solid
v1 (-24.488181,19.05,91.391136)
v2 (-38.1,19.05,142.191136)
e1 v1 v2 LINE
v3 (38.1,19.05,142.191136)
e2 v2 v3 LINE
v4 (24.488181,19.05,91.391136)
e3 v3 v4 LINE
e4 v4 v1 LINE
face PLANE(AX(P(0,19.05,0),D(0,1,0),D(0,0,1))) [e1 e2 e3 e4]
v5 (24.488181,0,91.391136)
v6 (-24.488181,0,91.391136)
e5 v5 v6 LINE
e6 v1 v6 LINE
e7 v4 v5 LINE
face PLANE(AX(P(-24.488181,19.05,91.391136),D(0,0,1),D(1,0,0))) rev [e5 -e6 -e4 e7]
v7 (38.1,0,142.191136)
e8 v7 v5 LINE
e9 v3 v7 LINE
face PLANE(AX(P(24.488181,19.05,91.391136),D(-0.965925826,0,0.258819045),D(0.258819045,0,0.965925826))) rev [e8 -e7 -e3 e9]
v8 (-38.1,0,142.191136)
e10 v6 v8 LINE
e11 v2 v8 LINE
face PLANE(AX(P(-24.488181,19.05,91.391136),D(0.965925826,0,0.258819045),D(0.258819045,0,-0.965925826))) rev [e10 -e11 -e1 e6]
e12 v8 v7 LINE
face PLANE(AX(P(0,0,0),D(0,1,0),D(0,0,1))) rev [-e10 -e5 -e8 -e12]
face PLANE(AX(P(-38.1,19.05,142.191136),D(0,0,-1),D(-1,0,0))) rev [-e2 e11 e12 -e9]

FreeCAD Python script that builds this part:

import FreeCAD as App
import Part
import Sketcher

V = App.Vector
Q = App.Units.Quantity

doc = App.newDocument("Part")
body = doc.addObject("PartDesign::Body", "Body")

sketch1 = body.newObject("Sketcher::SketchObject", "Sketch")
sketch1.AttachmentSupport = (doc.getObject("XZ_Plane"), [""])
sketch1.MapMode = "FlatFace"
sketch1.addGeometry([
    Part.LineSegment(V(-38, 142, 0), V(38, 142, 0)),
    Part.LineSegment(V(38, 142, 0), V(24, 91, 0)),
    Part.LineSegment(V(24, 91, 0), V(-24, 91, 0)),
    Part.LineSegment(V(-24, 91, 0), V(-38, 142, 0)),
], False)
sketch1.addConstraint([
    Sketcher.Constraint("Coincident", 0, 2, 1, 1),
    Sketcher.Constraint("Coincident", 1, 2, 2, 1),
    Sketcher.Constraint("Coincident", 2, 2, 3, 1),
    Sketcher.Constraint("Coincident", 3, 2, 0, 1),
    Sketcher.Constraint("Horizontal", 0),
    Sketcher.Constraint("Horizontal", 2),
    Sketcher.Constraint("Equal", 1, 3),
    Sketcher.Constraint("DistanceX", 0, 1, 0, 2, Q("3 in")),
    Sketcher.Constraint("Angle", 1, Q("-105 deg")),
    Sketcher.Constraint("DistanceY", 1, 2, 0, 2, Q("2 in")),
    Sketcher.Constraint("DistanceX", -1, 1, 0, 2, Q("1.5 in")),
    Sketcher.Constraint("DistanceY", -1, 1, 0, 2, Q("142.191136 mm")),
])
pad1 = body.newObject("PartDesign::Pad", "Pad")
pad1.Profile = sketch1
pad1.Length = Q("0.75 in")
pad1.Reversed = True

doc.recompute()
